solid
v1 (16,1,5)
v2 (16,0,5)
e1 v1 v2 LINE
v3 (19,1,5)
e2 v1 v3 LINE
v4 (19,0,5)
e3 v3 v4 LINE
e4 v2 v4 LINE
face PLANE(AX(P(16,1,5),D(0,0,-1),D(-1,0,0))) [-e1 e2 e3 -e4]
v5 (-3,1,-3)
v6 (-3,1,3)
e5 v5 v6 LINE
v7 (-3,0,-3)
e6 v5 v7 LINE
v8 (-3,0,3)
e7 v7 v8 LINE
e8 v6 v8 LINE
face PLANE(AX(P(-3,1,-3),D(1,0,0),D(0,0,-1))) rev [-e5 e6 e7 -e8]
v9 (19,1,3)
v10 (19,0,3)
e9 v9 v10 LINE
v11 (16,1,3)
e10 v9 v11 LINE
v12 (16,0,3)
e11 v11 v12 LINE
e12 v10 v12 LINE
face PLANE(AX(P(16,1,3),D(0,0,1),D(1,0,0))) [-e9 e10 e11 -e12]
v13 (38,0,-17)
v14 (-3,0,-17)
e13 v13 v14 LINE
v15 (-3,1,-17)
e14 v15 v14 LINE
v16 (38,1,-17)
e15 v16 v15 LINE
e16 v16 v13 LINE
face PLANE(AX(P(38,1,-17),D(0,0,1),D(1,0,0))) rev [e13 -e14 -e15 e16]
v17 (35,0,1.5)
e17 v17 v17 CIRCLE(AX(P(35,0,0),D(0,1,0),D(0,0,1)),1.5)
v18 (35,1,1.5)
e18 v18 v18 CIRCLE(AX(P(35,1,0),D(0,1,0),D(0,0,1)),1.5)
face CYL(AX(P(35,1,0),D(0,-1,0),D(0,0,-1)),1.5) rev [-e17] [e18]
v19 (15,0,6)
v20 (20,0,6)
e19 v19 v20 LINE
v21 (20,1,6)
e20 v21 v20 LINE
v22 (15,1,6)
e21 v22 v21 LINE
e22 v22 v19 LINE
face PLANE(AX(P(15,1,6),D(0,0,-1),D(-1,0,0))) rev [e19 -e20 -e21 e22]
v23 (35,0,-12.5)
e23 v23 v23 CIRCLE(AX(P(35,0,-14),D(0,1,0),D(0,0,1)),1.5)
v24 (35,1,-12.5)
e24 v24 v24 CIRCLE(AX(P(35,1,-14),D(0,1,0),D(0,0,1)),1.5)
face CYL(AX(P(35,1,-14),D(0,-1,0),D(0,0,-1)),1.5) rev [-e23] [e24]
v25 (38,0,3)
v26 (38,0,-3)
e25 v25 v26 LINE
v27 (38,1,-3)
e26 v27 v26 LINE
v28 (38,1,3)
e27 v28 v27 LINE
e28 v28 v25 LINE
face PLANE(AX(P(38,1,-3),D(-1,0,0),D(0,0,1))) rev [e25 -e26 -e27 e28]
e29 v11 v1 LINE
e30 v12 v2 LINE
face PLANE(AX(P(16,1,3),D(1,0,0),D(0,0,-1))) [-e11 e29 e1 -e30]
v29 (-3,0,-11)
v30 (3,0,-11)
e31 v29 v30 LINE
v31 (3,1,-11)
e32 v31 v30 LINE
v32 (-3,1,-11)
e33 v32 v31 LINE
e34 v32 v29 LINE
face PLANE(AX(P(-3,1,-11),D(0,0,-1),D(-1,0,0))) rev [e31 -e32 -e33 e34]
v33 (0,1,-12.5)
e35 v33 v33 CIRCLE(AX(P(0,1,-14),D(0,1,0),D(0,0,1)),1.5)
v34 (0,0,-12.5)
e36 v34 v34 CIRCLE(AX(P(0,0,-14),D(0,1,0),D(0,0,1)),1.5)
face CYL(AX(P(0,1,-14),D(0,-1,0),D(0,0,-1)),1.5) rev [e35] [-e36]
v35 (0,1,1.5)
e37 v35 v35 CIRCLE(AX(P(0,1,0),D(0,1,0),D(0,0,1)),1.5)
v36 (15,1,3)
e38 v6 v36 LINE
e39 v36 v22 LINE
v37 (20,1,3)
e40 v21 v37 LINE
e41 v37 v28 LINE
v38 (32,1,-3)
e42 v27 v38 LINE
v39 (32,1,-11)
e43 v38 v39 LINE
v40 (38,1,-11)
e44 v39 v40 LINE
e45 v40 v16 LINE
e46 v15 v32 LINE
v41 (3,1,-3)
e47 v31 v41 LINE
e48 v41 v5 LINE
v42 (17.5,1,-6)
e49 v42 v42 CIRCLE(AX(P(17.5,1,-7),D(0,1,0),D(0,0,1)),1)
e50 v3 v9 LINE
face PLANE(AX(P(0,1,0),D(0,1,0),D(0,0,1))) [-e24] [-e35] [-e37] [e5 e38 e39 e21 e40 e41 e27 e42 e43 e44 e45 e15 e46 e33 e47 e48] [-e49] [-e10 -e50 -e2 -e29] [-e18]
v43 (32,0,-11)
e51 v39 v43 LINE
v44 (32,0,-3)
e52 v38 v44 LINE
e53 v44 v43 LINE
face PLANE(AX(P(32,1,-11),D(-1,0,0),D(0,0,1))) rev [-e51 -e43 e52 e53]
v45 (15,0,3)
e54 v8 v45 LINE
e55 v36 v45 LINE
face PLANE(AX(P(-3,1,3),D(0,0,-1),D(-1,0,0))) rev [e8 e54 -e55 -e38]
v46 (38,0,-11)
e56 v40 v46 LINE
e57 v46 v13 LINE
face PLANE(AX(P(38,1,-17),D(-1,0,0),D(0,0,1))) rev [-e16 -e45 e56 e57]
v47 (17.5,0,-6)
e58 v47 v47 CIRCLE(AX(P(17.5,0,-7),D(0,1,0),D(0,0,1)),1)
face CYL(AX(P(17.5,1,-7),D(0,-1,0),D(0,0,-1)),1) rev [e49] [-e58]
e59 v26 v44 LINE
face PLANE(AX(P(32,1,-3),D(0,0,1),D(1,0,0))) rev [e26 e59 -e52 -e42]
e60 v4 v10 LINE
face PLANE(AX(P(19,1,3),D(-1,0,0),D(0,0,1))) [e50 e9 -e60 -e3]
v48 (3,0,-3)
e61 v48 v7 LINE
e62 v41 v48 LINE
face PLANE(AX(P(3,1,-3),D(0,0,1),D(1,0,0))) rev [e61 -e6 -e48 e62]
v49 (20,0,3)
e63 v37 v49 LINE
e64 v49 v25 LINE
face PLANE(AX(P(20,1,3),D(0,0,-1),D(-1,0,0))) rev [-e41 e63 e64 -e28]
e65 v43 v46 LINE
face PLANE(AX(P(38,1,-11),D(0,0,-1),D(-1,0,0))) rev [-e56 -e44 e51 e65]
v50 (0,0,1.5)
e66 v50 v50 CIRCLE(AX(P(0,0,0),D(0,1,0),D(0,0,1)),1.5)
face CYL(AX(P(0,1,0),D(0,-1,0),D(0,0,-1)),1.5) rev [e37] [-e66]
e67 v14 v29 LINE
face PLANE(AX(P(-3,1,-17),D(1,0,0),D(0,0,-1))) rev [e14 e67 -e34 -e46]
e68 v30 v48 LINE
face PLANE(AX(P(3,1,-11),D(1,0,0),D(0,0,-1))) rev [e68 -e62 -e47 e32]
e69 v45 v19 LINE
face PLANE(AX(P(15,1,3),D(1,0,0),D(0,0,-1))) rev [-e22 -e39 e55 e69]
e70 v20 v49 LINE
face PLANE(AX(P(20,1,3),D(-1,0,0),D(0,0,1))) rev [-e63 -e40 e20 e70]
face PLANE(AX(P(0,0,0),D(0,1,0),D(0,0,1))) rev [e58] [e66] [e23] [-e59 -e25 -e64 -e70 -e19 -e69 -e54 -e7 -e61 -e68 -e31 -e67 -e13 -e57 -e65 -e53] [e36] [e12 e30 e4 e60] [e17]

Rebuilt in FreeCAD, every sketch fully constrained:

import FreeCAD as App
import Part
import Sketcher

V = App.Vector
Q = App.Units.Quantity

doc = App.newDocument("Part")
body = doc.addObject("PartDesign::Body", "Body")

# Sketch on XZ plane
sketch1 = body.newObject("Sketcher::SketchObject", "Sketch")
sketch1.AttachmentSupport = (doc.getObject("XZ_Plane"), [""])
sketch1.MapMode = "FlatFace"
sketch1.addGeometry(Part.LineSegment(V(38, -17, 0), V(-3, -17, 0)), False)
sketch1.addGeometry(Part.LineSegment(V(-3, -17, 0), V(-3, -11, 0)), False)
sketch1.addGeometry(Part.LineSegment(V(-3, -11, 0), V(3, -11, 0)), False)
sketch1.addGeometry(Part.LineSegment(V(3, -11, 0), V(3, -3, 0)), False)
sketch1.addGeometry(Part.LineSegment(V(3, -3, 0), V(-3, -3, 0)), False)
sketch1.addGeometry(Part.LineSegment(V(-3, -3, 0), V(-3, 3, 0)), False)
sketch1.addGeometry(Part.LineSegment(V(-3, 3, 0), V(15, 3, 0)), False)
sketch1.addGeometry(Part.LineSegment(V(15, 3, 0), V(15, 6, 0)), False)
sketch1.addGeometry(Part.LineSegment(V(15, 6, 0), V(20, 6, 0)), False)
sketch1.addGeometry(Part.LineSegment(V(20, 6, 0), V(20, 3, 0)), False)
sketch1.addGeometry(Part.LineSegment(V(20, 3, 0), V(38, 3, 0)), False)
sketch1.addGeometry(Part.LineSegment(V(38, 3, 0), V(38, -3, 0)), False)
sketch1.addGeometry(Part.LineSegment(V(38, -3, 0), V(32, -3, 0)), False)
sketch1.addGeometry(Part.LineSegment(V(32, -3, 0), V(32, -11, 0)), False)
sketch1.addGeometry(Part.LineSegment(V(32, -11, 0), V(38, -11, 0)), False)
sketch1.addGeometry(Part.LineSegment(V(38, -11, 0), V(38, -17, 0)), False)
sketch1.addGeometry(Part.Circle(V(0, 0, 0), V(0, 0, 1), 1.5), False)
sketch1.addGeometry(Part.LineSegment(V(19, 5, 0), V(16, 5, 0)), False)
sketch1.addGeometry(Part.LineSegment(V(16, 5, 0), V(16, 3, 0)), False)
sketch1.addGeometry(Part.LineSegment(V(16, 3, 0), V(19, 3, 0)), False)
sketch1.addGeometry(Part.LineSegment(V(19, 3, 0), V(19, 5, 0)), False)
sketch1.addGeometry(Part.Circle(V(35, 0, 0), V(0, 0, 1), 1.5), False)
sketch1.addGeometry(Part.Circle(V(0, -14, 0), V(0, 0, 1), 1.5), False)
sketch1.addGeometry(Part.Circle(V(17.5, -7, 0), V(0, 0, 1), 1), False)
sketch1.addGeometry(Part.Circle(V(35, -14, 0), V(0, 0, 1), 1.5), False)
sketch1.addConstraint(Sketcher.Constraint("Coincident", 0, 2, 1, 1))
sketch1.addConstraint(Sketcher.Constraint("Coincident", 1, 2, 2, 1))
sketch1.addConstraint(Sketcher.Constraint("Coincident", 2, 2, 3, 1))
sketch1.addConstraint(Sketcher.Constraint("Coincident", 3, 2, 4, 1))
sketch1.addConstraint(Sketcher.Constraint("Coincident", 4, 2, 5, 1))
sketch1.addConstraint(Sketcher.Constraint("Coincident", 5, 2, 6, 1))
sketch1.addConstraint(Sketcher.Constraint("Coincident", 6, 2, 7, 1))
sketch1.addConstraint(Sketcher.Constraint("Coincident", 7, 2, 8, 1))
sketch1.addConstraint(Sketcher.Constraint("Coincident", 8, 2, 9, 1))
sketch1.addConstraint(Sketcher.Constraint("Coincident", 9, 2, 10, 1))
sketch1.addConstraint(Sketcher.Constraint("Coincident", 10, 2, 11, 1))
sketch1.addConstraint(Sketcher.Constraint("Coincident", 11, 2, 12, 1))
sketch1.addConstraint(Sketcher.Constraint("Coincident", 12, 2, 13, 1))
sketch1.addConstraint(Sketcher.Constraint("Coincident", 13, 2, 14, 1))
sketch1.addConstraint(Sketcher.Constraint("Coincident", 14, 2, 15, 1))
sketch1.addConstraint(Sketcher.Constraint("Coincident", 15, 2, 0, 1))
sketch1.addConstraint(Sketcher.Constraint("Coincident", 17, 2, 18, 1))
sketch1.addConstraint(Sketcher.Constraint("Coincident", 18, 2, 19, 1))
sketch1.addConstraint(Sketcher.Constraint("Coincident", 19, 2, 20, 1))
sketch1.addConstraint(Sketcher.Constraint("Coincident", 20, 2, 17, 1))
sketch1.addConstraint(Sketcher.Constraint("Horizontal", 0))
sketch1.addConstraint(Sketcher.Constraint("Vertical", 1))
sketch1.addConstraint(Sketcher.Constraint("Horizontal", 2))
sketch1.addConstraint(Sketcher.Constraint("Vertical", 3))
sketch1.addConstraint(Sketcher.Constraint("Horizontal", 4))
sketch1.addConstraint(Sketcher.Constraint("Vertical", 5))
sketch1.addConstraint(Sketcher.Constraint("Horizontal", 6))
sketch1.addConstraint(Sketcher.Constraint("Vertical", 7))
sketch1.addConstraint(Sketcher.Constraint("Horizontal", 8))
sketch1.addConstraint(Sketcher.Constraint("Vertical", 9))
sketch1.addConstraint(Sketcher.Constraint("Horizontal", 10))
sketch1.addConstraint(Sketcher.Constraint("Vertical", 11))
sketch1.addConstraint(Sketcher.Constraint("Horizontal", 12))
sketch1.addConstraint(Sketcher.Constraint("Vertical", 13))
sketch1.addConstraint(Sketcher.Constraint("Horizontal", 14))
sketch1.addConstraint(Sketcher.Constraint("Vertical", 15))
sketch1.addConstraint(Sketcher.Constraint("Horizontal", 17))
sketch1.addConstraint(Sketcher.Constraint("Vertical", 18))
sketch1.addConstraint(Sketcher.Constraint("Horizontal", 19))
sketch1.addConstraint(Sketcher.Constraint("Vertical", 20))
sketch1.addConstraint(Sketcher.Constraint("Coincident", 16, 3, -1, 1))
sketch1.addConstraint(Sketcher.Constraint("Equal", 16, 21))
sketch1.addConstraint(Sketcher.Constraint("Equal", 21, 22))
sketch1.addConstraint(Sketcher.Constraint("Equal", 22, 24))
sketch1.addConstraint(Sketcher.Constraint("Symmetric", 3, 2, 5, 2, -1, 1))
sketch1.addConstraint(Sketcher.Constraint("PointOnObject", 21, 3, -1))
sketch1.addConstraint(Sketcher.Constraint("PointOnObject", 22, 3, -2))
sketch1.addConstraint(Sketcher.Constraint("Horizontal", 22, 3, 24, 3))
sketch1.addConstraint(Sketcher.Constraint("Horizontal", 6, 2, 9, 2))
sketch1.addConstraint(Sketcher.Constraint("Horizontal", 4, 2, 11, 2))
sketch1.addConstraint(Sketcher.Constraint("Horizontal", 2, 2, 13, 2))
sketch1.addConstraint(Sketcher.Constraint("Horizontal", 10, 2, 18, 2))
sketch1.addConstraint(Sketcher.Constraint("Vertical", 21, 3, 24, 3))
sketch1.addConstraint(Sketcher.Constraint("Vertical", 1, 2, 4, 2))
sketch1.addConstraint(Sketcher.Constraint("Vertical", 11, 2, 14, 2))
sketch1.addConstraint(Sketcher.Constraint("Equal", 6, 10))
sketch1.addConstraint(Sketcher.Constraint("Equal", 4, 12))
sketch1.addConstraint(Sketcher.Constraint("Equal", 14, 1))
sketch1.addConstraint(Sketcher.Constraint("Equal", 1, 5))
sketch1.addConstraint(Sketcher.Constraint("Equal", 19, 7))
sketch1.addConstraint(Sketcher.Constraint("Diameter", 16, Q("3 mm")))
sketch1.addConstraint(Sketcher.Constraint("Diameter", 23, Q("2 mm")))
sketch1.addConstraint(Sketcher.Constraint("DistanceX", 0, 2, 0, 1, Q("41 mm")))
sketch1.addConstraint(Sketcher.Constraint("DistanceX", 2, 1, 2, 2, Q("6 mm")))
sketch1.addConstraint(Sketcher.Constraint("DistanceX", 6, 1, 6, 2, Q("18 mm")))
sketch1.addConstraint(Sketcher.Constraint("DistanceX", 17, 2, 17, 1, Q("3 mm")))
sketch1.addConstraint(Sketcher.Constraint("DistanceY", 3, 1, 3, 2, Q("8 mm")))
sketch1.addConstraint(Sketcher.Constraint("DistanceY", 18, 2, 18, 1, Q("2 mm")))
sketch1.addConstraint(Sketcher.Constraint("DistanceX", -1, 1, 21, 3, Q("35 mm")))
sketch1.addConstraint(Sketcher.Constraint("DistanceY", 22, 3, -1, 1, Q("14 mm")))
sketch1.addConstraint(Sketcher.Constraint("DistanceY", 23, 3, -1, 1, Q("7 mm")))
sketch1.addConstraint(Sketcher.Constraint("DistanceX", -1, 1, 17, 2, Q("16 mm")))
sketch1.addConstraint(Sketcher.Constraint("DistanceX", -1, 1, 23, 3, Q("17.5 mm")))
pad1 = body.newObject("PartDesign::Pad", "Pad")
pad1.Profile = sketch1
pad1.Length = 1
pad1.Reversed = True

doc.recompute()
